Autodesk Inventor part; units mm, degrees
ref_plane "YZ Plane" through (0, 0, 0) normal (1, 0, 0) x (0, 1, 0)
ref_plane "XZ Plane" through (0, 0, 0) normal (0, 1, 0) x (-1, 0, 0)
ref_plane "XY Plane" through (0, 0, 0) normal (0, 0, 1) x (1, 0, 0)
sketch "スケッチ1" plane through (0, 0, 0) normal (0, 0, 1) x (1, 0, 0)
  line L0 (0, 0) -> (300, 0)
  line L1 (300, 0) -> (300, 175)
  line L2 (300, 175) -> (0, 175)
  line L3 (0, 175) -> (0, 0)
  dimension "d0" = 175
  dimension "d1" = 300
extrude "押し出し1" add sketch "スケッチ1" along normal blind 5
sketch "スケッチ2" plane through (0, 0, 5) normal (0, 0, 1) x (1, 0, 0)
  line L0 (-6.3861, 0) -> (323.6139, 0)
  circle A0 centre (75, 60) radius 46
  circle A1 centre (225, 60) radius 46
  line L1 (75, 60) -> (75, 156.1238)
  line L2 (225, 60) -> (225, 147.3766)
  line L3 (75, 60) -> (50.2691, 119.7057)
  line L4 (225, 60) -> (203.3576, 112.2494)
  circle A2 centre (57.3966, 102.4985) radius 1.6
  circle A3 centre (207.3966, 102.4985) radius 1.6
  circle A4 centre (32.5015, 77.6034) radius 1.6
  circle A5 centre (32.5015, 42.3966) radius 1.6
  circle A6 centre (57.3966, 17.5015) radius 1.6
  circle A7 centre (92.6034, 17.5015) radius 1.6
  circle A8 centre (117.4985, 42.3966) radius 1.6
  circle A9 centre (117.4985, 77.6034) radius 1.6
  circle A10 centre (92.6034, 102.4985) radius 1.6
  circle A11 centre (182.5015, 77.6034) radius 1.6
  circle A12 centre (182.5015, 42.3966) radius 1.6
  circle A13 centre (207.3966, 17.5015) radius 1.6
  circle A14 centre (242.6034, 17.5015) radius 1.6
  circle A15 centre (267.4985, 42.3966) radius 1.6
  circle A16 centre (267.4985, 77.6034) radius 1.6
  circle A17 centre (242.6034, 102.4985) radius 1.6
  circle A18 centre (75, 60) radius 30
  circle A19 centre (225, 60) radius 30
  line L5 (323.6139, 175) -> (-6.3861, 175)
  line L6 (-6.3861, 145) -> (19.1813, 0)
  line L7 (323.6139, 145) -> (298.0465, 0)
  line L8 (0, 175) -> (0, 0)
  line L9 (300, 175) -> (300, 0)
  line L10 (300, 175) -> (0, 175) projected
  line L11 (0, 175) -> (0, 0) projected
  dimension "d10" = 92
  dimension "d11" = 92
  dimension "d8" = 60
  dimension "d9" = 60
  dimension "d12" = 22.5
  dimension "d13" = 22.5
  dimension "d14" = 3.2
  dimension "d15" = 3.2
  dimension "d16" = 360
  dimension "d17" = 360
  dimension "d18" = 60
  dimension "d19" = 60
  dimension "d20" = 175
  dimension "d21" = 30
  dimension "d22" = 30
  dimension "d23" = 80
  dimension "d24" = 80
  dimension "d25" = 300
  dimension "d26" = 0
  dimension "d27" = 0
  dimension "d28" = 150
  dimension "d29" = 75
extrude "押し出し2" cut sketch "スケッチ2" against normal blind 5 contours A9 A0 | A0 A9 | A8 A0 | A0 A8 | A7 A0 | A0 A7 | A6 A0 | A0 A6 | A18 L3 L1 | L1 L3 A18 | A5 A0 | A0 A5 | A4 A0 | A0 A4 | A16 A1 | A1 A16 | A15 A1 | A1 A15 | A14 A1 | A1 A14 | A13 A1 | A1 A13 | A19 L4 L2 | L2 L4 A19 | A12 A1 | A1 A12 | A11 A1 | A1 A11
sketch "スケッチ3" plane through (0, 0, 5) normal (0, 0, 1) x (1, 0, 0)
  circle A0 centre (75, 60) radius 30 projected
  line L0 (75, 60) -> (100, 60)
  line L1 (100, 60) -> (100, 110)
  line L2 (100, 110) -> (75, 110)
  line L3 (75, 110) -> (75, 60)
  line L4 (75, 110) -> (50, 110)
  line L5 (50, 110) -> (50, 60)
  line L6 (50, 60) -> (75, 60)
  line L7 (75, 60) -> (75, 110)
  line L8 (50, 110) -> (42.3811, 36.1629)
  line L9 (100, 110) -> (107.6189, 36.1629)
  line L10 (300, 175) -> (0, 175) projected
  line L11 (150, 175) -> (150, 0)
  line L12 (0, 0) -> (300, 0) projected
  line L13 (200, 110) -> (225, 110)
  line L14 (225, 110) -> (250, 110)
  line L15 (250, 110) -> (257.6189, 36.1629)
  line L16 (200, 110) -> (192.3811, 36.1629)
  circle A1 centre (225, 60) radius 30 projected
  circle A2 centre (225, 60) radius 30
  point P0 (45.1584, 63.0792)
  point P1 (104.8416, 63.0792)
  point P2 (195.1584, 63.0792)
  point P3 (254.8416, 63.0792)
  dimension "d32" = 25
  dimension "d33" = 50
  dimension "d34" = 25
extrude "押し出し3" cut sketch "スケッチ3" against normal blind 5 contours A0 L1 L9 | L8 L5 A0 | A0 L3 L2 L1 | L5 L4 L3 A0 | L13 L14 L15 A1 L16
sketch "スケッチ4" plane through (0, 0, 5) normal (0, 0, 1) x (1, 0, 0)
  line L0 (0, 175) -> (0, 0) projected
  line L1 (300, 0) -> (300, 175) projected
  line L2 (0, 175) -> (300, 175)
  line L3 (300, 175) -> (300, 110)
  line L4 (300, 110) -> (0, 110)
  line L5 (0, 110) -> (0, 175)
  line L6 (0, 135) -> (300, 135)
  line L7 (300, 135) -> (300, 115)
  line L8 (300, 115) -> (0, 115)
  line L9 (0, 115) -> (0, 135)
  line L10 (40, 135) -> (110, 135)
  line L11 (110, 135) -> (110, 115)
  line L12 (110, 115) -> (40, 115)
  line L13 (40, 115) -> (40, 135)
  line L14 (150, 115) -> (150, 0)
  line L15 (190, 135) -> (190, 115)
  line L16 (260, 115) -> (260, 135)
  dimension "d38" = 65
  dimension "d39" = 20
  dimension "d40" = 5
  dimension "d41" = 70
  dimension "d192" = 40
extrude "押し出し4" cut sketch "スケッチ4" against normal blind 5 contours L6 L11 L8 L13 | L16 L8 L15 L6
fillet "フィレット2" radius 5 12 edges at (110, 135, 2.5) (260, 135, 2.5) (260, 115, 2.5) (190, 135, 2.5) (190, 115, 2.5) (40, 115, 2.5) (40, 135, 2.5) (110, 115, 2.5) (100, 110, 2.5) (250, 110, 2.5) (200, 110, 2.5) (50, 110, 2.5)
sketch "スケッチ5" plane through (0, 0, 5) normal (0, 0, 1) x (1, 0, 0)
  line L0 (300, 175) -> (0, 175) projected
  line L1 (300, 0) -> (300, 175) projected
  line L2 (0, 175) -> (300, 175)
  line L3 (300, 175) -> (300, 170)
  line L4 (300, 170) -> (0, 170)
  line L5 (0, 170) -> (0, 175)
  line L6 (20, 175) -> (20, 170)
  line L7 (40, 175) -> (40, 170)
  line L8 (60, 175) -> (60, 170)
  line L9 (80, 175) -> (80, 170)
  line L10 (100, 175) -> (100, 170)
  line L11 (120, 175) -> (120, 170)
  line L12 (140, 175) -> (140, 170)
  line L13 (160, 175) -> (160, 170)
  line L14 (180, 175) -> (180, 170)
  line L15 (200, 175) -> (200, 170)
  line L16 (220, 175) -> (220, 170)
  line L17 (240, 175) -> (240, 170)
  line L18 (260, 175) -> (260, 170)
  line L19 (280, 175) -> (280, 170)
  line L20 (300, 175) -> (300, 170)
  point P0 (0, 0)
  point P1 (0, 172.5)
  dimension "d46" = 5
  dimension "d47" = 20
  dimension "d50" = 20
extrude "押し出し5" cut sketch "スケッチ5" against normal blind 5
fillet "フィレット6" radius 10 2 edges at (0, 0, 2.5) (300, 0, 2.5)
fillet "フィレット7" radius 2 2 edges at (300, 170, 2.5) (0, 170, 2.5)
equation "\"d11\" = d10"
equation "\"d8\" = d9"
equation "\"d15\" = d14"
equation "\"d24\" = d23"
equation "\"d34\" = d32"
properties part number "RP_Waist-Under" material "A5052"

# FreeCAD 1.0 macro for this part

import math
import FreeCAD as App
import Part
import Sketcher

V = App.Vector


def edges_at(feature, points):
    """Names of the edges that pass closest to the given points."""
    edges = feature.Shape.Edges
    near = lambda p: min(range(len(edges)), key=lambda i: edges[i].distToShape(Part.Vertex(*p))[0])
    return sorted({f"Edge{near(p) + 1}" for p in points})


def add_polygon(sketch, points):
    """Adds a closed chain of lines whose ends are joined by coincident constraints."""
    first, n = sketch.GeometryCount, len(points)
    for a, b in zip(points, points[1:] + points[:1]):
        sketch.addGeometry(Part.LineSegment(App.Vector(*a, 0), App.Vector(*b, 0)), False)
    for i in range(n):
        sketch.addConstraint(Sketcher.Constraint("Coincident", first + i, 2, first + (i + 1) % n, 1))

doc = App.newDocument("Part")
body = doc.addObject("PartDesign::Body", "Body")

sketch1 = body.newObject("Sketcher::SketchObject", "Sketch")
sketch1.AttachmentSupport = (doc.getObject("XY_Plane"), [""])
sketch1.MapMode = "FlatFace"
add_polygon(sketch1, [(0, 175), (0, 0), (300, 0), (300, 175)])
sketch1.addConstraint(Sketcher.Constraint("Vertical", 0))
sketch1.addConstraint(Sketcher.Constraint("Horizontal", 1))
sketch1.addConstraint(Sketcher.Constraint("Vertical", 2))
sketch1.addConstraint(Sketcher.Constraint("Horizontal", 3))
sketch1.addConstraint(Sketcher.Constraint("Coincident", 0, 2, -1, 1))
sketch1.addConstraint(Sketcher.Constraint("DistanceX", 1, 1, 1, 2, 300.0))
sketch1.addConstraint(Sketcher.Constraint("DistanceY", 0, 2, 0, 1, 175.0))
pad1 = body.newObject("PartDesign::Pad", "Pad")
pad1.Profile = sketch1
pad1.Length = 5

sketch2 = body.newObject("Sketcher::SketchObject", "Sketch001")
sketch2.AttachmentSupport = (doc.getObject("XY_Plane"), [""])
sketch2.MapMode = "FlatFace"
sketch2.AttachmentOffset = App.Placement(V(0, 0, 5), App.Rotation())
sketch2.addGeometry(Part.Circle(V(117.5, 77.6, 0), V(0, 0, 1), 1.6), False)
sketch2.addGeometry(Part.Circle(V(117.5, 42.4, 0), V(0, 0, 1), 1.6), False)
sketch2.addGeometry(Part.Circle(V(92.6, 17.5, 0), V(0, 0, 1), 1.6), False)
sketch2.addGeometry(Part.Circle(V(57.4, 17.5, 0), V(0, 0, 1), 1.6), False)
sketch2.addGeometry(Part.Circle(V(75, 60, 0), V(0, 0, 1), 30), False)
sketch2.addGeometry(Part.Circle(V(32.5, 42.4, 0), V(0, 0, 1), 1.6), False)
sketch2.addGeometry(Part.Circle(V(32.5, 77.6, 0), V(0, 0, 1), 1.6), False)
sketch2.addGeometry(Part.Circle(V(267.5, 77.6, 0), V(0, 0, 1), 1.6), False)
sketch2.addGeometry(Part.Circle(V(267.5, 42.4, 0), V(0, 0, 1), 1.6), False)
sketch2.addGeometry(Part.Circle(V(242.6, 17.5, 0), V(0, 0, 1), 1.6), False)
sketch2.addGeometry(Part.Circle(V(207.4, 17.5, 0), V(0, 0, 1), 1.6), False)
sketch2.addGeometry(Part.Circle(V(225, 60, 0), V(0, 0, 1), 30), False)
sketch2.addGeometry(Part.Circle(V(182.5, 42.4, 0), V(0, 0, 1), 1.6), False)
sketch2.addGeometry(Part.Circle(V(182.5, 77.6, 0), V(0, 0, 1), 1.6), False)
sketch2.addConstraint(Sketcher.Constraint("Equal", 0, 1))
sketch2.addConstraint(Sketcher.Constraint("Equal", 1, 2))
sketch2.addConstraint(Sketcher.Constraint("Equal", 2, 3))
sketch2.addConstraint(Sketcher.Constraint("Equal", 3, 5))
sketch2.addConstraint(Sketcher.Constraint("Equal", 5, 6))
sketch2.addConstraint(Sketcher.Constraint("Equal", 6, 7))
sketch2.addConstraint(Sketcher.Constraint("Equal", 7, 8))
sketch2.addConstraint(Sketcher.Constraint("Equal", 8, 9))
sketch2.addConstraint(Sketcher.Constraint("Equal", 9, 10))
sketch2.addConstraint(Sketcher.Constraint("Equal", 4, 11))
sketch2.addConstraint(Sketcher.Constraint("Equal", 10, 12))
sketch2.addConstraint(Sketcher.Constraint("Equal", 12, 13))
sketch2.addConstraint(Sketcher.Constraint("Horizontal", 2, 3, 3, 3))
sketch2.addConstraint(Sketcher.Constraint("Horizontal", 1, 3, 5, 3))
sketch2.addConstraint(Sketcher.Constraint("Horizontal", 0, 3, 6, 3))
sketch2.addConstraint(Sketcher.Constraint("Horizontal", 6, 3, 7, 3))
sketch2.addConstraint(Sketcher.Constraint("Horizontal", 5, 3, 8, 3))
sketch2.addConstraint(Sketcher.Constraint("Horizontal", 3, 3, 9, 3))
sketch2.addConstraint(Sketcher.Constraint("Horizontal", 9, 3, 10, 3))
sketch2.addConstraint(Sketcher.Constraint("Horizontal", 4, 3, 11, 3))
sketch2.addConstraint(Sketcher.Constraint("Horizontal", 8, 3, 12, 3))
sketch2.addConstraint(Sketcher.Constraint("Horizontal", 7, 3, 13, 3))
sketch2.addConstraint(Sketcher.Constraint("Vertical", 0, 3, 1, 3))
sketch2.addConstraint(Sketcher.Constraint("Vertical", 5, 3, 6, 3))
sketch2.addConstraint(Sketcher.Constraint("Vertical", 7, 3, 8, 3))
sketch2.addConstraint(Sketcher.Constraint("Vertical", 12, 3, 13, 3))
sketch2.addConstraint(Sketcher.Constraint("Diameter", 4, 60.0))
sketch2.addConstraint(Sketcher.Constraint("Diameter", 0, 3.2))
sketch2.addConstraint(Sketcher.Constraint("DistanceX", -1, 1, 4, 3, 75.0))
sketch2.addConstraint(Sketcher.Constraint("DistanceY", -1, 1, 4, 3, 60.0))
sketch2.addConstraint(Sketcher.Constraint("DistanceX", 0, 3, 7, 3, 150.0))
sketch2.addConstraint(Sketcher.Constraint("DistanceX", 2, 3, 9, 3, 150.0))
sketch2.addConstraint(Sketcher.Constraint("DistanceX", -1, 1, 11, 3, 225.0))
sketch2.addConstraint(Sketcher.Constraint("DistanceX", 2, 3, 1, 3, 24.895))
sketch2.addConstraint(Sketcher.Constraint("DistanceY", 2, 3, 1, 3, 24.895))
sketch2.addConstraint(Sketcher.Constraint("DistanceY", 2, 3, 0, 3, 60.102))
sketch2.addConstraint(Sketcher.Constraint("DistanceX", 3, 3, 1, 3, 60.102))
sketch2.addConstraint(Sketcher.Constraint("DistanceX", 5, 3, 3, 3, 24.895))
sketch2.addConstraint(Sketcher.Constraint("DistanceX", 10, 3, 8, 3, 60.102))
sketch2.addConstraint(Sketcher.Constraint("DistanceX", 12, 3, 10, 3, 24.895))
sketch2.addConstraint(Sketcher.Constraint("DistanceX", -1, 1, 0, 3, 117.4985))
sketch2.addConstraint(Sketcher.Constraint("DistanceY", -1, 1, 0, 3, 77.6034))
pocket1 = body.newObject("PartDesign::Pocket", "Pocket")
pocket1.Profile = sketch2
pocket1.Length = 5

sketch3 = body.newObject("Sketcher::SketchObject", "Sketch002")
sketch3.AttachmentSupport = (doc.getObject("XY_Plane"), [""])
sketch3.MapMode = "FlatFace"
sketch3.AttachmentOffset = App.Placement(V(0, 0, 5), App.Rotation())
sketch3.addGeometry(Part.LineSegment(V(105, 63, 0), V(100, 110, 0)), False)
sketch3.addGeometry(Part.LineSegment(V(100, 110, 0), V(50, 110, 0)), False)
sketch3.addGeometry(Part.LineSegment(V(50, 110, 0), V(45, 63, 0)), False)
sketch3.addGeometry(Part.ArcOfCircle(Part.Circle(V(75, 60, 0), V(0, 0, 1), 30), math.radians(6), math.radians(174)), False)
sketch3.addGeometry(Part.LineSegment(V(250, 110, 0), V(200, 110, 0)), False)
sketch3.addGeometry(Part.LineSegment(V(200, 110, 0), V(195, 63, 0)), False)
sketch3.addGeometry(Part.ArcOfCircle(Part.Circle(V(225, 60, 0), V(0, 0, 1), 30), math.radians(6), math.radians(174)), False)
sketch3.addGeometry(Part.LineSegment(V(255, 63, 0), V(250, 110, 0)), False)
sketch3.addConstraint(Sketcher.Constraint("Coincident", 0, 2, 1, 1))
sketch3.addConstraint(Sketcher.Constraint("Coincident", 1, 2, 2, 1))
sketch3.addConstraint(Sketcher.Constraint("Tangent", 2, 2, 3, 2))
sketch3.addConstraint(Sketcher.Constraint("Tangent", 3, 1, 0, 1))
sketch3.addConstraint(Sketcher.Constraint("Coincident", 4, 2, 5, 1))
sketch3.addConstraint(Sketcher.Constraint("Tangent", 5, 2, 6, 2))
sketch3.addConstraint(Sketcher.Constraint("Tangent", 6, 1, 7, 1))
sketch3.addConstraint(Sketcher.Constraint("Coincident", 7, 2, 4, 1))
sketch3.addConstraint(Sketcher.Constraint("Horizontal", 1))
sketch3.addConstraint(Sketcher.Constraint("Horizontal", 4))
sketch3.addConstraint(Sketcher.Constraint("Equal", 3, 6))
sketch3.addConstraint(Sketcher.Constraint("Parallel", 2, 5))
sketch3.addConstraint(Sketcher.Constraint("Parallel", 0, 7))
sketch3.addConstraint(Sketcher.Constraint("Horizontal", 3, 3, 6, 3))
sketch3.addConstraint(Sketcher.Constraint("Horizontal", 2, 2, 3, 1))
sketch3.addConstraint(Sketcher.Constraint("Horizontal", 1, 2, 4, 2))
sketch3.addConstraint(Sketcher.Constraint("DistanceX", 1, 2, 1, 1, 50.0))
sketch3.addConstraint(Sketcher.Constraint("DistanceX", -1, 1, 1, 2, 50.0))
sketch3.addConstraint(Sketcher.Constraint("Radius", 3, 30.0))
sketch3.addConstraint(Sketcher.Constraint("DistanceY", 3, 3, 0, 2, 50.0))
sketch3.addConstraint(Sketcher.Constraint("DistanceY", -1, 1, 3, 3, 60.0))
sketch3.addConstraint(Sketcher.Constraint("DistanceX", -1, 1, 6, 3, 225.0))
pocket2 = body.newObject("PartDesign::Pocket", "Pocket001")
pocket2.Profile = sketch3
pocket2.Length = 5

sketch4 = body.newObject("Sketcher::SketchObject", "Sketch003")
sketch4.AttachmentSupport = (doc.getObject("XY_Plane"), [""])
sketch4.MapMode = "FlatFace"
sketch4.AttachmentOffset = App.Placement(V(0, 0, 5), App.Rotation())
add_polygon(sketch4, [(110, 135), (40, 135), (40, 115), (110, 115)])
add_polygon(sketch4, [(260, 115), (260, 135), (190, 135), (190, 115)])
sketch4.addConstraint(Sketcher.Constraint("Horizontal", 0))
sketch4.addConstraint(Sketcher.Constraint("Vertical", 1))
sketch4.addConstraint(Sketcher.Constraint("Horizontal", 2))
sketch4.addConstraint(Sketcher.Constraint("Vertical", 3))
sketch4.addConstraint(Sketcher.Constraint("Vertical", 4))
sketch4.addConstraint(Sketcher.Constraint("Horizontal", 5))
sketch4.addConstraint(Sketcher.Constraint("Vertical", 6))
sketch4.addConstraint(Sketcher.Constraint("Horizontal", 7))
sketch4.addConstraint(Sketcher.Constraint("Horizontal", 3, 2, 4, 2))
sketch4.addConstraint(Sketcher.Constraint("Horizontal", 2, 2, 6, 2))
sketch4.addConstraint(Sketcher.Constraint("Equal", 2, 5))
sketch4.addConstraint(Sketcher.Constraint("DistanceX", 0, 2, 0, 1, 70.0))
sketch4.addConstraint(Sketcher.Constraint("DistanceY", 1, 2, 1, 1, 20.0))
sketch4.addConstraint(Sketcher.Constraint("DistanceX", -1, 1, 0, 2, 40.0))
sketch4.addConstraint(Sketcher.Constraint("DistanceY", -1, 1, 0, 2, 135.0))
sketch4.addConstraint(Sketcher.Constraint("DistanceX", -1, 1, 4, 2, 260.0))
pocket3 = body.newObject("PartDesign::Pocket", "Pocket002")
pocket3.Profile = sketch4
pocket3.Length = 5
doc.recompute()

fillet = body.newObject("PartDesign::Fillet", "Fillet")
fillet.Base = (pocket3, edges_at(pocket3, [
    (110, 135, 2.5),
    (260, 135, 2.5),
    (260, 115, 2.5),
    (190, 135, 2.5),
    (190, 115, 2.5),
    (40, 115, 2.5),
    (40, 135, 2.5),
    (110, 115, 2.5),
    (100, 110, 2.5),
    (250, 110, 2.5),
    (200, 110, 2.5),
    (50, 110, 2.5),
]))
fillet.Radius = 5

sketch5 = body.newObject("Sketcher::SketchObject", "Sketch004")
sketch5.AttachmentSupport = (doc.getObject("XY_Plane"), [""])
sketch5.MapMode = "FlatFace"
sketch5.AttachmentOffset = App.Placement(V(0, 0, 5), App.Rotation())
add_polygon(sketch5, [(300, 170), (300, 175), (0, 175), (0, 170)])
sketch5.addConstraint(Sketcher.Constraint("Vertical", 0))
sketch5.addConstraint(Sketcher.Constraint("Horizontal", 1))
sketch5.addConstraint(Sketcher.Constraint("Vertical", 2))
sketch5.addConstraint(Sketcher.Constraint("Horizontal", 3))
sketch5.addConstraint(Sketcher.Constraint("PointOnObject", 1, 2, -2))
sketch5.addConstraint(Sketcher.Constraint("DistanceY", 0, 1, 0, 2, 5.0))
sketch5.addConstraint(Sketcher.Constraint("DistanceX", 1, 2, 1, 1, 300.0))
sketch5.addConstraint(Sketcher.Constraint("DistanceY", -1, 1, 0, 2, 175.0))
pocket4 = body.newObject("PartDesign::Pocket", "Pocket003")
pocket4.Profile = sketch5
pocket4.Length = 5
doc.recompute()

fillet2 = body.newObject("PartDesign::Fillet", "Fillet001")
fillet2.Base = (pocket4, edges_at(pocket4, [(0, 0, 2.5), (300, 0, 2.5)]))
fillet2.Radius = 10
doc.recompute()

fillet3 = body.newObject("PartDesign::Fillet", "Fillet002")
fillet3.Base = (fillet2, edges_at(fillet2, [(300, 170, 2.5), (0, 170, 2.5)]))
fillet3.Radius = 2

doc.recompute()
